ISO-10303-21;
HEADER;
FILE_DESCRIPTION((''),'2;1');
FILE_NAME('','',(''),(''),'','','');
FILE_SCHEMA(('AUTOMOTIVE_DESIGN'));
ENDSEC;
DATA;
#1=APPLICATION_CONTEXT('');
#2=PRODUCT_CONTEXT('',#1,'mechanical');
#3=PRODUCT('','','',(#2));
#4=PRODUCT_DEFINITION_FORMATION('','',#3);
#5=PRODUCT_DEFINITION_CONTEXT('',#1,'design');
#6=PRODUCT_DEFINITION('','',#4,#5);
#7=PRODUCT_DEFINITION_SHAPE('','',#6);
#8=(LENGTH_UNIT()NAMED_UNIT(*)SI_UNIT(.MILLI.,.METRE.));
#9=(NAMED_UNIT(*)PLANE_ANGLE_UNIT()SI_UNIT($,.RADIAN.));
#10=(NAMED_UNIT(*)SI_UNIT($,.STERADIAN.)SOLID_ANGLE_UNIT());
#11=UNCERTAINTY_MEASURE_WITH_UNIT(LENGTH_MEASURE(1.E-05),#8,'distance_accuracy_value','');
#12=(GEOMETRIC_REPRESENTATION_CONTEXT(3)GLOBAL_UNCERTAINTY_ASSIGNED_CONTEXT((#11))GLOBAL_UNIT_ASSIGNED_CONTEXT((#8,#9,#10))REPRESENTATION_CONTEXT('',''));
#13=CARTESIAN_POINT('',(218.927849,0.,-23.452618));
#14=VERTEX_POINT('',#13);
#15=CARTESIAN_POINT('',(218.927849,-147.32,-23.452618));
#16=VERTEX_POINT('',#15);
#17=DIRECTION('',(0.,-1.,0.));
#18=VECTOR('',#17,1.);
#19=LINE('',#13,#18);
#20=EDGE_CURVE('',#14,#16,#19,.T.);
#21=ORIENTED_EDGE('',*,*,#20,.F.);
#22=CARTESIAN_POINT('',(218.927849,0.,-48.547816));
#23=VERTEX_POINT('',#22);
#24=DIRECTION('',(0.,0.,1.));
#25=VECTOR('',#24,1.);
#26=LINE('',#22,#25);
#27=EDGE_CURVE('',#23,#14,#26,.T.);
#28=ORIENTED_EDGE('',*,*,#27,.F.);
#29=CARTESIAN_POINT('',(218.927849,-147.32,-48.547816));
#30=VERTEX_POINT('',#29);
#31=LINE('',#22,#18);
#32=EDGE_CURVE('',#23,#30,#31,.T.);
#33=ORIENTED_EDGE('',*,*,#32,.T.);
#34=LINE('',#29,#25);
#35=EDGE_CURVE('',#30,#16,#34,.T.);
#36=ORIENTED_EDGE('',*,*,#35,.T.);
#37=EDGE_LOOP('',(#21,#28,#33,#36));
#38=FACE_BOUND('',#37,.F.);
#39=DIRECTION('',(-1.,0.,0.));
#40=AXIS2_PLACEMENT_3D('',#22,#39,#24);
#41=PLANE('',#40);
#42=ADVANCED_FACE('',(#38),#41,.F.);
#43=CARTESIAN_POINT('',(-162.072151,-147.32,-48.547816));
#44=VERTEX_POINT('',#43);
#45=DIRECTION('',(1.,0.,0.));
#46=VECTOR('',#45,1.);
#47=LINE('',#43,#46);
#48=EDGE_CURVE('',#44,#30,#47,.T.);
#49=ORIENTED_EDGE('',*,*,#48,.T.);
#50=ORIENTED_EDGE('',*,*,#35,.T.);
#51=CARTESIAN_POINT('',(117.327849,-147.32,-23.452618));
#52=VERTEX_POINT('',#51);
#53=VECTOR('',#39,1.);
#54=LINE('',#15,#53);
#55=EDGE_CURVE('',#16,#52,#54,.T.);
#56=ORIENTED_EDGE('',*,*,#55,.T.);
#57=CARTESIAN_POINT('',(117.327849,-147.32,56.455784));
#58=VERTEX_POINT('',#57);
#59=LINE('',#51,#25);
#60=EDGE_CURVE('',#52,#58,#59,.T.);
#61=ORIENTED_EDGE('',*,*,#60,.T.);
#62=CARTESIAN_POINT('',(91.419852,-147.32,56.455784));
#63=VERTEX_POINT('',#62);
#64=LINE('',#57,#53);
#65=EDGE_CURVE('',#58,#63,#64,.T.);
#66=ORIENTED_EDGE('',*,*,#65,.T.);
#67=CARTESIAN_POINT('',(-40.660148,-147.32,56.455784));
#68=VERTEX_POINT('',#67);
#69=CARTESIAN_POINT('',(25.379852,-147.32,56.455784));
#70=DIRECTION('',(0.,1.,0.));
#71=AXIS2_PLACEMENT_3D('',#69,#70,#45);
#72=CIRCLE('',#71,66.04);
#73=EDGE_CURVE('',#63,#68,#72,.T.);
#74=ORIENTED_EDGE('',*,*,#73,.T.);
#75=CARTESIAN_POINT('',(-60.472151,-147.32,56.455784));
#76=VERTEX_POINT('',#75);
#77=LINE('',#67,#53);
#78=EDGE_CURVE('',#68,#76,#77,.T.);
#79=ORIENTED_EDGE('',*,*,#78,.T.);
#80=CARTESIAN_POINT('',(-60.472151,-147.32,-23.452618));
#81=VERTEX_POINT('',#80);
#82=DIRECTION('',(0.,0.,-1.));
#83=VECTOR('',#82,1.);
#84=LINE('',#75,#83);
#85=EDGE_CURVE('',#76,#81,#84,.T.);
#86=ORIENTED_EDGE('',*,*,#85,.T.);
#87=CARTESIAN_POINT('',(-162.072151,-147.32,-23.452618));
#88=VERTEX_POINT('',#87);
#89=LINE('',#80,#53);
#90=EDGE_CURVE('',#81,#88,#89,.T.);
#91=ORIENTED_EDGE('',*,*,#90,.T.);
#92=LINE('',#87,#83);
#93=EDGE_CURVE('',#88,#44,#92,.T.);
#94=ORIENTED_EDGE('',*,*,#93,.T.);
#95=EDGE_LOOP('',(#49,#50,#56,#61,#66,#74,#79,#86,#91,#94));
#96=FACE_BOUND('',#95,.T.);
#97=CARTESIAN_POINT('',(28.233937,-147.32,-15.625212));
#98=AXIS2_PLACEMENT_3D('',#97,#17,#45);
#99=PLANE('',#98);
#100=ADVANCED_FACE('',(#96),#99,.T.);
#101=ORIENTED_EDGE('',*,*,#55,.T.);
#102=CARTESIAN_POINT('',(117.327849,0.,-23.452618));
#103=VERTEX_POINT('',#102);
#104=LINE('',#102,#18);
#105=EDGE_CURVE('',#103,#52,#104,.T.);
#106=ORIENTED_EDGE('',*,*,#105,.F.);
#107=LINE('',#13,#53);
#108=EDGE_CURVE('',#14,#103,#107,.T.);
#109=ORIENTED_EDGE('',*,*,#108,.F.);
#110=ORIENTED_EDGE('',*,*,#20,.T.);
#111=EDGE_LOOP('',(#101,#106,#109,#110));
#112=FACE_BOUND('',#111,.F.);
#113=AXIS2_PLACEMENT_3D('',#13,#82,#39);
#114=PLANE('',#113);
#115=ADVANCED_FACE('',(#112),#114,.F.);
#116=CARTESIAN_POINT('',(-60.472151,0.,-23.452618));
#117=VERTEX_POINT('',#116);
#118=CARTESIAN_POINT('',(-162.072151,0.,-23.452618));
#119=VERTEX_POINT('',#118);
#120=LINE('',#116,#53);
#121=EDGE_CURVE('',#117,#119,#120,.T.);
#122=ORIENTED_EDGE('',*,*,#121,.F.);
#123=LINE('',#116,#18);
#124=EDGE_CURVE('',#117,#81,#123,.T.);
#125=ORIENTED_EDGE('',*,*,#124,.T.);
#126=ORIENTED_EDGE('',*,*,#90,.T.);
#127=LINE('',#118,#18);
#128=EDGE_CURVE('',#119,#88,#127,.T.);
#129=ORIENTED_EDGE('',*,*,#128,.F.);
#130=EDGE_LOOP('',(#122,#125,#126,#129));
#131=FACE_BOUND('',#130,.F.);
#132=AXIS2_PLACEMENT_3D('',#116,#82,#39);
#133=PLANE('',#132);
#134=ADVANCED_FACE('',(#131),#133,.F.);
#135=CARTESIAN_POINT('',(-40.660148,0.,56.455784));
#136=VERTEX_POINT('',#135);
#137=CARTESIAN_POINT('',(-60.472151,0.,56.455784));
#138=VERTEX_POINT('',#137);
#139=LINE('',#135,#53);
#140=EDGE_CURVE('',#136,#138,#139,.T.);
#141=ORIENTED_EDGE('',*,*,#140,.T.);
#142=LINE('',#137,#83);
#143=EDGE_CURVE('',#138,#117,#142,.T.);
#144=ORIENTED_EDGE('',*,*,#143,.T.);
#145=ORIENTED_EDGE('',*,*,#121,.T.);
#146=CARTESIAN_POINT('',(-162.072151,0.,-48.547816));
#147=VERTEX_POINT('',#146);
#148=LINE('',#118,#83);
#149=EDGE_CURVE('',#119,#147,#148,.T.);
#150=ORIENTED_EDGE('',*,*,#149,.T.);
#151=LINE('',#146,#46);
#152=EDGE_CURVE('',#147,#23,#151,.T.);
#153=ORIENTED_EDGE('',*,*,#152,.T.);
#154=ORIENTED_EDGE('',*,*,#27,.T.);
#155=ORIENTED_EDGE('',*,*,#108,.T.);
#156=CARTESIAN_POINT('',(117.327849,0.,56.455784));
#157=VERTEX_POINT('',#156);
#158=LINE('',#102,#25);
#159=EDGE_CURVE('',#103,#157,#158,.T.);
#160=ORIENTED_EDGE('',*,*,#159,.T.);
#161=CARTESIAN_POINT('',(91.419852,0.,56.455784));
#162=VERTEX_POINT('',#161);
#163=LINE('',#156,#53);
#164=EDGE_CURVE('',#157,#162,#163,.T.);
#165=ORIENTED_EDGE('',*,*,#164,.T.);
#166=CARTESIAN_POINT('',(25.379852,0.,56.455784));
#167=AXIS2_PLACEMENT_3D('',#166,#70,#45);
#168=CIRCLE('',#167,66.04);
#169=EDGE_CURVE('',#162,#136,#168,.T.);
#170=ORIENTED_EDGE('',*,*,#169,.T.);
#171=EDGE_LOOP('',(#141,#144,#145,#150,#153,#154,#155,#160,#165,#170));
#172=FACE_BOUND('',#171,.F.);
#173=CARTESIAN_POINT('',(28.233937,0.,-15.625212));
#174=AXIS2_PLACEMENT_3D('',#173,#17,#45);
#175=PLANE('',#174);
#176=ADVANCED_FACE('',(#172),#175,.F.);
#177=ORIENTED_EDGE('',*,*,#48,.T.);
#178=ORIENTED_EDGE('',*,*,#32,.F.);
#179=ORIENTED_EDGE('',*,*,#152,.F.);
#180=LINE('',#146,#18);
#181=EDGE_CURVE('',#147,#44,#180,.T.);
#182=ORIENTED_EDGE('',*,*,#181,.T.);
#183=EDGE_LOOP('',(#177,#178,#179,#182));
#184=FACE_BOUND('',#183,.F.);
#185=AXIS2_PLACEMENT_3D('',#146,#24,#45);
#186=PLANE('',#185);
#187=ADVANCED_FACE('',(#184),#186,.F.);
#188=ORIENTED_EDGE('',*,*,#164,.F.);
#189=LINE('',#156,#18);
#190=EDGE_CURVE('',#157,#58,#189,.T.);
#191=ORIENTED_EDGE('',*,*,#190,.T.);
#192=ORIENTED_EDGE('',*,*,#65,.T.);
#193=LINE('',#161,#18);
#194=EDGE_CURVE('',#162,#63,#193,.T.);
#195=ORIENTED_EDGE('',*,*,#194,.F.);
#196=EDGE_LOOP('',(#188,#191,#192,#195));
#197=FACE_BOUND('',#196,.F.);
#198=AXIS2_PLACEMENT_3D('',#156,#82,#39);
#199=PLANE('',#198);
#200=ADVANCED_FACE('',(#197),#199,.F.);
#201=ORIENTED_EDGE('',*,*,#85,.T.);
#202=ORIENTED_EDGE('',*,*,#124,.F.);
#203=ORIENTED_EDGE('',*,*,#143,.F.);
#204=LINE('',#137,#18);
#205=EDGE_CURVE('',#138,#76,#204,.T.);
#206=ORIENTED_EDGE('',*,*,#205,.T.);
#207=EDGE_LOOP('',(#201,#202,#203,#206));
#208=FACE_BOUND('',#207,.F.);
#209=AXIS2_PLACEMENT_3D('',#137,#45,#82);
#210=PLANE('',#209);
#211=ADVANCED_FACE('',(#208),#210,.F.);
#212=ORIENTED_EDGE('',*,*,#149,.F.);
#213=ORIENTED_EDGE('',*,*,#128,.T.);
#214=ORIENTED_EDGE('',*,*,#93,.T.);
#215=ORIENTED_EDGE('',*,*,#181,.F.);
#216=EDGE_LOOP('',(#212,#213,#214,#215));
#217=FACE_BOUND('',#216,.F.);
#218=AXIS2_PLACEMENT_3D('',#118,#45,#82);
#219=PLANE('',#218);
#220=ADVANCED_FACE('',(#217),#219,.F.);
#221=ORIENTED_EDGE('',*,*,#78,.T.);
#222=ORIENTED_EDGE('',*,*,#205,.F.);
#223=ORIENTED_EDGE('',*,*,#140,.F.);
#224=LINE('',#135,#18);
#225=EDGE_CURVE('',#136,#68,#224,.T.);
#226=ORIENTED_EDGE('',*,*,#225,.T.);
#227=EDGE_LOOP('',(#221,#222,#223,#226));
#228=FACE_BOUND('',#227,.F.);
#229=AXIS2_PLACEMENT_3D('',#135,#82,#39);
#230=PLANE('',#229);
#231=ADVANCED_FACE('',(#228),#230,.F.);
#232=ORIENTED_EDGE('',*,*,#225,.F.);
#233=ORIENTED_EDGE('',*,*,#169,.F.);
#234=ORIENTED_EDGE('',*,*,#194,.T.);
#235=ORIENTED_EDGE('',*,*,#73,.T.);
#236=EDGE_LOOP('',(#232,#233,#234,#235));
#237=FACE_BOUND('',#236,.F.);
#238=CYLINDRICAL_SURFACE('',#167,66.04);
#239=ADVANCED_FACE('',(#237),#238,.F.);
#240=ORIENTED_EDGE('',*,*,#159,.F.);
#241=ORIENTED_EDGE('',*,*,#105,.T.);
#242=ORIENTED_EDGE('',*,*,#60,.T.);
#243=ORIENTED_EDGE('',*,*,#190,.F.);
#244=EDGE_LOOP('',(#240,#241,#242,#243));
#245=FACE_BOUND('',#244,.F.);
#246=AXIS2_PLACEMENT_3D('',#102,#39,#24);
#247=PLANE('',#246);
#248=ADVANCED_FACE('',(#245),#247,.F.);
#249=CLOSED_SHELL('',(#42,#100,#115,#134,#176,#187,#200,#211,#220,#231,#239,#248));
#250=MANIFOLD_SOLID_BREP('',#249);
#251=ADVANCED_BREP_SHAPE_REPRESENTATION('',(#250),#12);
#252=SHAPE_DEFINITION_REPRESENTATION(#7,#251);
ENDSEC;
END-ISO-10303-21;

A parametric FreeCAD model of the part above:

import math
import FreeCAD as App
import Part
import Sketcher
from FreeCAD import Vector
Q = App.Units.Quantity

doc = App.newDocument("Part")
body = doc.addObject("PartDesign::Body", "Body")

sketch1 = body.newObject("Sketcher::SketchObject", "Sketch")
sketch1.AttachmentSupport = (doc.getObject("XZ_Plane"), [""])
sketch1.MapMode = "FlatFace"
sketch1.addGeometry([
    Part.LineSegment(Vector(-60.472151, -23.452618, 0), Vector(-162.072151, -23.452618, 0)),
    Part.LineSegment(Vector(-162.072151, -23.452618, 0), Vector(-162.072151, -48.547816, 0)),
    Part.LineSegment(Vector(-162.072151, -48.547816, 0), Vector(218.927849, -48.547816, 0)),
    Part.LineSegment(Vector(218.927849, -48.547816, 0), Vector(218.927849, -23.452618, 0)),
    Part.LineSegment(Vector(218.927849, -23.452618, 0), Vector(117.327849, -23.452618, 0)),
    Part.LineSegment(Vector(117.327849, -23.452618, 0), Vector(117.327849, 56.455784, 0)),
    Part.LineSegment(Vector(117.327849, 56.455784, 0), Vector(91.419852, 56.455784, 0)),
    Part.ArcOfCircle(Part.Circle(Vector(25.379852, 56.455784, 0), Vector(0, 0, 1), 66.04), math.radians(180), math.radians(360)),
    Part.LineSegment(Vector(-40.660148, 56.455784, 0), Vector(-60.472151, 56.455784, 0)),
    Part.LineSegment(Vector(-60.472151, 56.455784, 0), Vector(-60.472151, -23.452618, 0)),
], False)
sketch1.addConstraint([
    Sketcher.Constraint("Coincident", 0, 2, 1, 1),
    Sketcher.Constraint("Coincident", 1, 2, 2, 1),
    Sketcher.Constraint("Coincident", 2, 2, 3, 1),
    Sketcher.Constraint("Coincident", 3, 2, 4, 1),
    Sketcher.Constraint("Coincident", 4, 2, 5, 1),
    Sketcher.Constraint("Coincident", 5, 2, 6, 1),
    Sketcher.Constraint("Coincident", 6, 2, 7, 2),
    Sketcher.Constraint("Coincident", 7, 1, 8, 1),
    Sketcher.Constraint("Coincident", 8, 2, 9, 1),
    Sketcher.Constraint("Coincident", 9, 2, 0, 1),
    Sketcher.Constraint("Horizontal", 0),
    Sketcher.Constraint("Vertical", 1),
    Sketcher.Constraint("Horizontal", 2),
    Sketcher.Constraint("Vertical", 3),
    Sketcher.Constraint("Horizontal", 4),
    Sketcher.Constraint("Vertical", 5),
    Sketcher.Constraint("Horizontal", 6),
    Sketcher.Constraint("Horizontal", 8),
    Sketcher.Constraint("Vertical", 9),
    Sketcher.Constraint("Horizontal", 0, 2, 3, 2),
    Sketcher.Constraint("Horizontal", 7, 3, 5, 2),
    Sketcher.Constraint("Horizontal", 6, 2, 7, 1),
    Sketcher.Constraint("Equal", 0, 4),
    Sketcher.Constraint("Radius", 7, Q("2.6 in")),
    Sketcher.Constraint("DistanceX", 0, 2, 0, 1, Q("4 in")),
    Sketcher.Constraint("DistanceX", 2, 1, 2, 2, Q("15 in")),
    Sketcher.Constraint("DistanceX", 6, 2, 6, 1, Q("1.0199999 in")),
    Sketcher.Constraint("DistanceY", 1, 2, 1, 1, Q("0.9879999 in")),
    Sketcher.Constraint("DistanceY", 5, 1, 5, 2, Q("3.1460001 in")),
    Sketcher.Constraint("DistanceX", -1, 1, 7, 3, Q("25.379852 mm")),
    Sketcher.Constraint("DistanceY", 0, 2, -1, 1, Q("23.452618 mm")),
])
pad1 = body.newObject("PartDesign::Pad", "Pad")
pad1.Profile = sketch1
pad1.Length = Q("5.8 in")

doc.recompute()
